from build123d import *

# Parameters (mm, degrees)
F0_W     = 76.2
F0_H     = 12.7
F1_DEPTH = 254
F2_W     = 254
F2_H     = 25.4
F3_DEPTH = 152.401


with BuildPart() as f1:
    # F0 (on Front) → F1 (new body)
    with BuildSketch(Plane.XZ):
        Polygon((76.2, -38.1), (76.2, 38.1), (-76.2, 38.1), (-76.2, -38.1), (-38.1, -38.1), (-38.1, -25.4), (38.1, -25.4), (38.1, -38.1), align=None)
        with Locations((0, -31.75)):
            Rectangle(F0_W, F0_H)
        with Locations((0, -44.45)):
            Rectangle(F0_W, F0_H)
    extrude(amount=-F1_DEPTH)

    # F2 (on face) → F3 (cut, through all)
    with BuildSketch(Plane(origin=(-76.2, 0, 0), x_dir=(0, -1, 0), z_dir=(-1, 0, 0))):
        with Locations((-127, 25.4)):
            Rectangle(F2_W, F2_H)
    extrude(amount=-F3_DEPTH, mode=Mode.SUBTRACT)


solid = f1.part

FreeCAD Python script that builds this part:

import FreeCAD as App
import Part
import Sketcher

V = App.Vector
Q = App.Units.Quantity

doc = App.newDocument("Part")
body = doc.addObject("PartDesign::Body", "Body")

# Sketch on XZ plane
sketch1 = body.newObject("Sketcher::SketchObject", "Sketch")
sketch1.AttachmentSupport = (doc.getObject("XZ_Plane"), [""])
sketch1.MapMode = "FlatFace"
sketch1.addGeometry(Part.LineSegment(V(76, -38, 0), V(76, 38, 0)), False)
sketch1.addGeometry(Part.LineSegment(V(76, 38, 0), V(-76, 38, 0)), False)
sketch1.addGeometry(Part.LineSegment(V(-76, 38, 0), V(-76, -38, 0)), False)
sketch1.addGeometry(Part.LineSegment(V(-76, -38, 0), V(-38, -38, 0)), False)
sketch1.addGeometry(Part.LineSegment(V(-38, -38, 0), V(-38, -51, 0)), False)
sketch1.addGeometry(Part.LineSegment(V(-38, -51, 0), V(38, -51, 0)), False)
sketch1.addGeometry(Part.LineSegment(V(38, -51, 0), V(38, -38, 0)), False)
sketch1.addGeometry(Part.LineSegment(V(38, -38, 0), V(76, -38, 0)), False)
sketch1.addConstraint(Sketcher.Constraint("Coincident", 0, 2, 1, 1))
sketch1.addConstraint(Sketcher.Constraint("Coincident", 1, 2, 2, 1))
sketch1.addConstraint(Sketcher.Constraint("Coincident", 2, 2, 3, 1))
sketch1.addConstraint(Sketcher.Constraint("Coincident", 3, 2, 4, 1))
sketch1.addConstraint(Sketcher.Constraint("Coincident", 4, 2, 5, 1))
sketch1.addConstraint(Sketcher.Constraint("Coincident", 5, 2, 6, 1))
sketch1.addConstraint(Sketcher.Constraint("Coincident", 6, 2, 7, 1))
sketch1.addConstraint(Sketcher.Constraint("Coincident", 7, 2, 0, 1))
sketch1.addConstraint(Sketcher.Constraint("Vertical", 0))
sketch1.addConstraint(Sketcher.Constraint("Horizontal", 1))
sketch1.addConstraint(Sketcher.Constraint("Vertical", 2))
sketch1.addConstraint(Sketcher.Constraint("Horizontal", 3))
sketch1.addConstraint(Sketcher.Constraint("Vertical", 4))
sketch1.addConstraint(Sketcher.Constraint("Horizontal", 5))
sketch1.addConstraint(Sketcher.Constraint("Vertical", 6))
sketch1.addConstraint(Sketcher.Constraint("Horizontal", 7))
sketch1.addConstraint(Sketcher.Constraint("Symmetric", 0, 2, 2, 2, -1, 1))
sketch1.addConstraint(Sketcher.Constraint("Symmetric", 3, 2, 6, 2, -2))
sketch1.addConstraint(Sketcher.Constraint("Equal", 5, 0))
sketch1.addConstraint(Sketcher.Constraint("DistanceX", 1, 2, 1, 1, Q("6 in")))
sketch1.addConstraint(Sketcher.Constraint("DistanceX", 5, 1, 5, 2, Q("3 in")))
sketch1.addConstraint(Sketcher.Constraint("DistanceY", 4, 2, 4, 1, Q("0.5 in")))
pad1 = body.newObject("PartDesign::Pad", "Pad")
pad1.Profile = sketch1
pad1.Length = Q("10 in")
pad1.Reversed = True

# Sketch on YZ plane
sketch2 = body.newObject("Sketcher::SketchObject", "Sketch001")
sketch2.AttachmentSupport = (doc.getObject("YZ_Plane"), [""])
sketch2.MapMode = "FlatFace"
sketch2.AttachmentOffset = App.Placement(V(0, 0, -3 * 25.4), App.Rotation())
sketch2.addGeometry(Part.LineSegment(V(254, 38, 0), V(254, 13, 0)), False)
sketch2.addGeometry(Part.LineSegment(V(254, 13, 0), V(0, 13, 0)), False)
sketch2.addGeometry(Part.LineSegment(V(0, 13, 0), V(0, 38, 0)), False)
sketch2.addGeometry(Part.LineSegment(V(0, 38, 0), V(254, 38, 0)), False)
sketch2.addConstraint(Sketcher.Constraint("Coincident", 0, 2, 1, 1))
sketch2.addConstraint(Sketcher.Constraint("Coincident", 1, 2, 2, 1))
sketch2.addConstraint(Sketcher.Constraint("Coincident", 2, 2, 3, 1))
sketch2.addConstraint(Sketcher.Constraint("Coincident", 3, 2, 0, 1))
sketch2.addConstraint(Sketcher.Constraint("Vertical", 0))
sketch2.addConstraint(Sketcher.Constraint("Horizontal", 1))
sketch2.addConstraint(Sketcher.Constraint("Vertical", 2))
sketch2.addConstraint(Sketcher.Constraint("Horizontal", 3))
sketch2.addConstraint(Sketcher.Constraint("PointOnObject", 1, 2, -2))
sketch2.addConstraint(Sketcher.Constraint("DistanceX", 1, 2, 1, 1, Q("10 in")))
sketch2.addConstraint(Sketcher.Constraint("DistanceY", 0, 2, 0, 1, Q("1 in")))
sketch2.addConstraint(Sketcher.Constraint("DistanceY", -1, 1, 0, 2, Q("0.5 in")))
pocket1 = body.newObject("PartDesign::Pocket", "Pocket")
pocket1.Profile = sketch2
pocket1.Type = "ThroughAll"
pocket1.Reversed = True

doc.recompute()
